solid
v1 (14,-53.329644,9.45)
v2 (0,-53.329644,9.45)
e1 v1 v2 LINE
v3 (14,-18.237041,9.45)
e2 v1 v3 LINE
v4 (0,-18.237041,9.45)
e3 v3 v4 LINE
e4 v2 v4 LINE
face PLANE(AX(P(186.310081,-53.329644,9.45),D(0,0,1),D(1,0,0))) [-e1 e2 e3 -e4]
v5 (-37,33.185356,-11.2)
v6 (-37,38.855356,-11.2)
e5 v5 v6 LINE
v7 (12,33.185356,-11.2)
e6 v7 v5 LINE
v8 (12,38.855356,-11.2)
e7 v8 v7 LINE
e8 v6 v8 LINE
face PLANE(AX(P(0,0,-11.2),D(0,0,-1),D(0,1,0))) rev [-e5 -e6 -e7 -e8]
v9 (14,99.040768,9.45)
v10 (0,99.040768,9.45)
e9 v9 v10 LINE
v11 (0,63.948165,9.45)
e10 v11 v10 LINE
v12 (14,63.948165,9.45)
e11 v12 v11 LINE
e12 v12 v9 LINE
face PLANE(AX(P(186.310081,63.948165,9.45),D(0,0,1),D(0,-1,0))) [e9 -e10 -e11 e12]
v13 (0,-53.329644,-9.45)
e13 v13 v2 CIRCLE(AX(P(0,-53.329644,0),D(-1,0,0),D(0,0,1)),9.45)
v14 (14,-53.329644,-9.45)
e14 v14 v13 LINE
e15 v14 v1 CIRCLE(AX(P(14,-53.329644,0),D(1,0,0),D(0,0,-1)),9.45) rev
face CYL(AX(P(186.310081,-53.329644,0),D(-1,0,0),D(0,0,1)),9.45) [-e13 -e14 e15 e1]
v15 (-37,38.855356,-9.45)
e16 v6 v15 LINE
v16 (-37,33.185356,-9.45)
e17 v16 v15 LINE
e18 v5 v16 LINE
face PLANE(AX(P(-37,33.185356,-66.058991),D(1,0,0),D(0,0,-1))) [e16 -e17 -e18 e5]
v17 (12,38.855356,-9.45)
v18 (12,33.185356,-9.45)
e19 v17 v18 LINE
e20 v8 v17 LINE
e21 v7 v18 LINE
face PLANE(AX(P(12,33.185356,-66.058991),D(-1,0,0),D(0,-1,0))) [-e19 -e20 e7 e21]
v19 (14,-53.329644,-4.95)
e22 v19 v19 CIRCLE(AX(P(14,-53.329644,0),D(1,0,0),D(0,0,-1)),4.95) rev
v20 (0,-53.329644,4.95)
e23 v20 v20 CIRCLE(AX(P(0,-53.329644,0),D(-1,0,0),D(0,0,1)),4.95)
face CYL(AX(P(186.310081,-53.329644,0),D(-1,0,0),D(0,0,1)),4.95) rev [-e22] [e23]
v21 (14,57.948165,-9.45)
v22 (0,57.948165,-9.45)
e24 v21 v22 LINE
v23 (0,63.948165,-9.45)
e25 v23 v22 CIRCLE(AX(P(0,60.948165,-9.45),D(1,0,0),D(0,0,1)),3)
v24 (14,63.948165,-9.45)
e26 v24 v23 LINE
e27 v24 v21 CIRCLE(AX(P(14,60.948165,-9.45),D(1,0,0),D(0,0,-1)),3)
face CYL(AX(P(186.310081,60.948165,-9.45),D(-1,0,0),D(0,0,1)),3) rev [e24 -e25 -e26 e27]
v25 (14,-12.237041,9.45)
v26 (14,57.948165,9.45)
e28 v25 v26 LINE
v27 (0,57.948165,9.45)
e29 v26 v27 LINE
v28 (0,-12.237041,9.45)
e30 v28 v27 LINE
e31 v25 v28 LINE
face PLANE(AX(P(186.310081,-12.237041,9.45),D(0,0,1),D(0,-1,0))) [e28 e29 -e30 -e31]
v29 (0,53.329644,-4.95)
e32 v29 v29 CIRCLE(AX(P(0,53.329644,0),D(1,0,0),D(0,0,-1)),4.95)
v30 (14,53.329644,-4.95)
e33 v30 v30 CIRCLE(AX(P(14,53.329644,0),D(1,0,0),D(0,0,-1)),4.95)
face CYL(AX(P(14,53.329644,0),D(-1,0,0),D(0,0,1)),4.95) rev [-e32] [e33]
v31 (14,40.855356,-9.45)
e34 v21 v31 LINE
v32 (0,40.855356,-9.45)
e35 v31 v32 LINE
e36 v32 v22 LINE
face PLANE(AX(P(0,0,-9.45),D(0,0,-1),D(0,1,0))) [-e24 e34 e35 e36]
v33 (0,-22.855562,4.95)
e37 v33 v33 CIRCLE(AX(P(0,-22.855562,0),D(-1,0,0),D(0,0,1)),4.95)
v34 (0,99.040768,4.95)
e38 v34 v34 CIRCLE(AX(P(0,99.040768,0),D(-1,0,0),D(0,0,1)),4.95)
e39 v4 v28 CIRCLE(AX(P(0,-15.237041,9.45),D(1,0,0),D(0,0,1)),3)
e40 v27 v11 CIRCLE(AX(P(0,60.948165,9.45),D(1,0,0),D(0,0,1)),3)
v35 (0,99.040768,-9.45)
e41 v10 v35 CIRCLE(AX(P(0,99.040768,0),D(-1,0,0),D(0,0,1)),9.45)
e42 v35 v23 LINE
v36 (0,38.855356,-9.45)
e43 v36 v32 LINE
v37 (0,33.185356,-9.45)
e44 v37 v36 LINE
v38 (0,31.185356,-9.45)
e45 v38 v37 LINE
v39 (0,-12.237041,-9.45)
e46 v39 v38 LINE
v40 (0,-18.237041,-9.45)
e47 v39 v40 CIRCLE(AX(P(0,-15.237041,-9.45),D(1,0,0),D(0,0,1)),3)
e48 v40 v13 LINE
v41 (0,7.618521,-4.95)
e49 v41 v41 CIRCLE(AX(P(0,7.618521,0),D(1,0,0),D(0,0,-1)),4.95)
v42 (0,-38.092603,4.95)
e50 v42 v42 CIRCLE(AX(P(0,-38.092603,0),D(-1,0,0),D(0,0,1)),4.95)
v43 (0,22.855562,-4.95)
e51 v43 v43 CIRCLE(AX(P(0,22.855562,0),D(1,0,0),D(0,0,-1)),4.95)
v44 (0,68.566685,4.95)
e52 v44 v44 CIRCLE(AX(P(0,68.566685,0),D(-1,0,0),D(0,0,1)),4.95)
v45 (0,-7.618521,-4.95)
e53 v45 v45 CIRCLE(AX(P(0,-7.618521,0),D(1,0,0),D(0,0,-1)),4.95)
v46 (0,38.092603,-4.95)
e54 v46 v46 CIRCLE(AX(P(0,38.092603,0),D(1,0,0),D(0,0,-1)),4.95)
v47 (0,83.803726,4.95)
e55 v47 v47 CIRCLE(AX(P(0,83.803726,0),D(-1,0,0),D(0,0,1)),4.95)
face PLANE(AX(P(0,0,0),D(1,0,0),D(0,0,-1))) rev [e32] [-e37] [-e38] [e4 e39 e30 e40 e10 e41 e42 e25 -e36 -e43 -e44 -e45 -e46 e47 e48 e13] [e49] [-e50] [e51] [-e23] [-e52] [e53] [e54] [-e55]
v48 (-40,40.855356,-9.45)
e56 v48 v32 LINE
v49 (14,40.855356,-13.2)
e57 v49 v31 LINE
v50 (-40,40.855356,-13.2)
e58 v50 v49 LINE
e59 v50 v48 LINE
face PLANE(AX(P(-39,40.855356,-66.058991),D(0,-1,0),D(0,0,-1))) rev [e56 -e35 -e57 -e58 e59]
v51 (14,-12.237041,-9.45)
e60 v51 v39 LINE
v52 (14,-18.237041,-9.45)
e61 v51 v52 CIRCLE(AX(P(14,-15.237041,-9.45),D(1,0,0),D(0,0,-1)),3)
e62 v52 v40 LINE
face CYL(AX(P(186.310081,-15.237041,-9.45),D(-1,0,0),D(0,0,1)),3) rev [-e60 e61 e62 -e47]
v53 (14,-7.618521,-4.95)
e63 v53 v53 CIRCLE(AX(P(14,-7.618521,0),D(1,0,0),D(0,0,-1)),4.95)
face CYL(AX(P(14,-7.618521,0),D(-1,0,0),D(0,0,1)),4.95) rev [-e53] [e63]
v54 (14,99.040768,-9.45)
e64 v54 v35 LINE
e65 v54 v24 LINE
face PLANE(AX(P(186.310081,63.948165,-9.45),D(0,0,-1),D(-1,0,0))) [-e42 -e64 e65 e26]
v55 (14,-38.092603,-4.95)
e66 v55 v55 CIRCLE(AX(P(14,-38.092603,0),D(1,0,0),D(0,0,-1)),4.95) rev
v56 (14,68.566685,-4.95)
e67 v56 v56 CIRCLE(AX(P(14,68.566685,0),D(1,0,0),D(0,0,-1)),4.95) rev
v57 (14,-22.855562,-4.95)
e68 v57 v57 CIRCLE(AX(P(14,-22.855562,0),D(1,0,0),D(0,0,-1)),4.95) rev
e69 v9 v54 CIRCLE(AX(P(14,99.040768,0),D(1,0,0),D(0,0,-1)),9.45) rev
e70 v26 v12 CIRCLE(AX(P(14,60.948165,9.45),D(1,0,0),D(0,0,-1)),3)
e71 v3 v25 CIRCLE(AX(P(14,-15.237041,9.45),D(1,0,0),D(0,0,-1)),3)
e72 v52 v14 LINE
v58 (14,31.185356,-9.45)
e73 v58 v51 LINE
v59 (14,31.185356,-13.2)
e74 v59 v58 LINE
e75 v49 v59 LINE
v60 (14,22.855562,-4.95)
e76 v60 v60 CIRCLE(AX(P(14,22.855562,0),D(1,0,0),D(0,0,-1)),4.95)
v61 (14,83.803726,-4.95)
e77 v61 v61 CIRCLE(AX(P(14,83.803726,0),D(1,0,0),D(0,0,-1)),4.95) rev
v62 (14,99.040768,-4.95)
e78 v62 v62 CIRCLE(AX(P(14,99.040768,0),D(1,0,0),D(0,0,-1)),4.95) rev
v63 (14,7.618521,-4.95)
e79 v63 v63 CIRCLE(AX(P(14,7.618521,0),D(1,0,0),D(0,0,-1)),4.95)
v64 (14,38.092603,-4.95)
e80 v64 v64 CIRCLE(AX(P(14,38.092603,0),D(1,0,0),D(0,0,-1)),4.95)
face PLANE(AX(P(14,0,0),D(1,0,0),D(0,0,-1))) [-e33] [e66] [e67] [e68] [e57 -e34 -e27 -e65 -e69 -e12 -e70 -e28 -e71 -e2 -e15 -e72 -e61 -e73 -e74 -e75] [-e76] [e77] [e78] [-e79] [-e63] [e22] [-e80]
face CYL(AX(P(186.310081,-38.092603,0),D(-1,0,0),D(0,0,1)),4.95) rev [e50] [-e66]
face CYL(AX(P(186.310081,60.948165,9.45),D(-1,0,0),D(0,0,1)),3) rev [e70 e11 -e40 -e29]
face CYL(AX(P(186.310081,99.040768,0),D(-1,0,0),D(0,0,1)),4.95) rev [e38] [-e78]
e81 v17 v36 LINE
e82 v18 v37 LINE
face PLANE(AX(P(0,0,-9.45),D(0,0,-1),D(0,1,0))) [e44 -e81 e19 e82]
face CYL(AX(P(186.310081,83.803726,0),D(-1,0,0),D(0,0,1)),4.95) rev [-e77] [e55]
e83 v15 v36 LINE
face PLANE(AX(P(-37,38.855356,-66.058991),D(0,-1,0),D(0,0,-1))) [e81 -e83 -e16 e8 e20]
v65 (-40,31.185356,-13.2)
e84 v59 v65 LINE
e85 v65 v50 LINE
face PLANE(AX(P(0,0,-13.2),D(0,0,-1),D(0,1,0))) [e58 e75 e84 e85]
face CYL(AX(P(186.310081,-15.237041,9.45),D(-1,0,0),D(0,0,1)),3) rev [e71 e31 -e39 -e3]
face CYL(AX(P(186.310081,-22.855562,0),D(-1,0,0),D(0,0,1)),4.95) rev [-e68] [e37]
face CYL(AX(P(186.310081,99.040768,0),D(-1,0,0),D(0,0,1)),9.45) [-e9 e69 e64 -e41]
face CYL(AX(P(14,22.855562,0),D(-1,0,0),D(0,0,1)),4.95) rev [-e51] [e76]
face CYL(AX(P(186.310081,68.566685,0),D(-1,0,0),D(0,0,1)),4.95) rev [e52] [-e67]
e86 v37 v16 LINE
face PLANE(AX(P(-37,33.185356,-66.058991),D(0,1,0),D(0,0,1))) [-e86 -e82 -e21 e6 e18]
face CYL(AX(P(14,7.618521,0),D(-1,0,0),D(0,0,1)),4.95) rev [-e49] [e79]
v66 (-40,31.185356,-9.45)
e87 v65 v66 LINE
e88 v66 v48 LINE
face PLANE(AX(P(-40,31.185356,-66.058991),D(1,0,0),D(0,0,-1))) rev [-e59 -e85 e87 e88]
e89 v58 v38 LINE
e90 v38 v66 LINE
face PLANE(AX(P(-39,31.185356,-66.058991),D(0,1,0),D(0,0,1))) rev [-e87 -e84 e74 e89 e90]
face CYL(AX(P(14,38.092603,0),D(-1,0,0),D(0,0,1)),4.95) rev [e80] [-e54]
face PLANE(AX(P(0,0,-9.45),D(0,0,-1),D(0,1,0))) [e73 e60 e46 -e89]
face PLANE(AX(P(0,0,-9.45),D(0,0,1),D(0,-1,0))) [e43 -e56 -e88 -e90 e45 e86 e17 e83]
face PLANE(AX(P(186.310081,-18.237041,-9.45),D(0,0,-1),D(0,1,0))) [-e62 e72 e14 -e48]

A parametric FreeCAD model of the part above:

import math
import FreeCAD as App
import Part
import Sketcher

doc = App.newDocument("Part")
body = doc.addObject("PartDesign::Body", "Body")

# Sketch on YZ plane
sketch1 = body.newObject("Sketcher::SketchObject", "Sketch")
sketch1.AttachmentSupport = (doc.getObject("YZ_Plane"), [""])
sketch1.MapMode = "FlatFace"
sketch1.addGeometry([
    Part.ArcOfCircle(Part.Circle(App.Vector(53.3, 0, 0), App.Vector(0, 0, 1), 6.5), math.radians(-90), math.radians(90)),  # 0
    Part.LineSegment(App.Vector(53.3, 6.5, 0), App.Vector(-7.6, 6.5, 0)),  # 1
    Part.ArcOfCircle(Part.Circle(App.Vector(-7.6, 0, 0), App.Vector(0, 0, 1), 6.5), math.radians(90), math.radians(270)),  # 2
    Part.LineSegment(App.Vector(-7.6, -6.5, 0), App.Vector(53.3, -6.5, 0)),  # 3
    Part.Circle(App.Vector(-7.6, 0, 0), App.Vector(0, 0, 1), 5),  # 4
    Part.Circle(App.Vector(7.6, 0, 0), App.Vector(0, 0, 1), 5),  # 5
    Part.Circle(App.Vector(22.9, 0, 0), App.Vector(0, 0, 1), 5),  # 6
    Part.Circle(App.Vector(38.1, 0, 0), App.Vector(0, 0, 1), 5),  # 7
    Part.Circle(App.Vector(53.3, 0, 0), App.Vector(0, 0, 1), 5),  # 8
], False)
sketch1.addConstraint([
    Sketcher.Constraint("Tangent", 0, 2, 1, 1),
    Sketcher.Constraint("Tangent", 1, 2, 2, 1),
    Sketcher.Constraint("Tangent", 2, 2, 3, 1),
    Sketcher.Constraint("Tangent", 3, 2, 0, 1),
    Sketcher.Constraint("Horizontal", 1),
    Sketcher.Constraint("Horizontal", 3),
    Sketcher.Constraint("Coincident", 4, 3, 2, 3),
    Sketcher.Constraint("Coincident", 8, 3, 0, 3),
    Sketcher.Constraint("Equal", 4, 5),
    Sketcher.Constraint("Equal", 5, 6),
    Sketcher.Constraint("Equal", 6, 7),
    Sketcher.Constraint("Equal", 7, 8),
    Sketcher.Constraint("Symmetric", 2, 3, 5, 3, -1, 1),
    Sketcher.Constraint("PointOnObject", 0, 3, -1),
    Sketcher.Constraint("PointOnObject", 6, 3, -1),
    Sketcher.Constraint("PointOnObject", 7, 3, -1),
    Sketcher.Constraint("Diameter", 4, 9.9),
    Sketcher.Constraint("Radius", 0, 6.45),
    Sketcher.Constraint("DistanceX", 1, 2, 1, 1, 60.948165),
    Sketcher.Constraint("DistanceX", 2, 3, -1, 1, 7.618521),
    Sketcher.Constraint("DistanceX", -1, 1, 6, 3, 22.855562),
    Sketcher.Constraint("DistanceX", 6, 3, 7, 3, 15.237041),
])
pad1 = body.newObject("PartDesign::Pad", "Pad")
pad1.Profile = sketch1
pad1.Length = 14

# Sketch on XY plane
sketch2 = body.newObject("Sketcher::SketchObject", "Sketch001")
sketch2.AttachmentSupport = (doc.getObject("XY_Plane"), [""])
sketch2.MapMode = "FlatFace"
sketch2.AttachmentOffset = App.Placement(App.Vector(0, 0, -6.45), App.Rotation())
sketch2.addGeometry([
    Part.LineSegment(App.Vector(14, 53, 0), App.Vector(14, -8, 0)),
    Part.LineSegment(App.Vector(14, -8, 0), App.Vector(0, -8, 0)),
    Part.LineSegment(App.Vector(0, -8, 0), App.Vector(0, 53, 0)),
    Part.LineSegment(App.Vector(0, 53, 0), App.Vector(14, 53, 0)),
], False)
sketch2.addConstraint([
    Sketcher.Constraint("Coincident", 0, 2, 1, 1),
    Sketcher.Constraint("Coincident", 1, 2, 2, 1),
    Sketcher.Constraint("Coincident", 2, 2, 3, 1),
    Sketcher.Constraint("Coincident", 3, 2, 0, 1),
    Sketcher.Constraint("Vertical", 0),
    Sketcher.Constraint("Horizontal", 1),
    Sketcher.Constraint("Vertical", 2),
    Sketcher.Constraint("Horizontal", 3),
    Sketcher.Constraint("PointOnObject", 1, 2, -2),
    Sketcher.Constraint("DistanceX", 1, 2, 1, 1, 14.0),
    Sketcher.Constraint("DistanceY", 0, 2, 0, 1, 60.948165),
    Sketcher.Constraint("DistanceY", 0, 2, -1, 1, 7.618521),
])
pad2 = body.newObject("PartDesign::Pad", "Pad001")
pad2.Profile = sketch2
pad2.Length = 3
pad2.Reversed = True

# Sketch on YZ plane
sketch3 = body.newObject("Sketcher::SketchObject", "Sketch002")
sketch3.AttachmentSupport = (doc.getObject("YZ_Plane"), [""])
sketch3.MapMode = "FlatFace"
sketch3.addGeometry([
    Part.ArcOfCircle(Part.Circle(App.Vector(60.9, -9.4, 0), App.Vector(0, 0, 1), 3), math.radians(0), math.radians(180)),  # 0
    Part.LineSegment(App.Vector(57.9, -9.4, 0), App.Vector(-12.2, -9.4, 0)),  # 1
    Part.ArcOfCircle(Part.Circle(App.Vector(-15.2, -9.4, 0), App.Vector(0, 0, 1), 3), math.radians(0), math.radians(180)),  # 2
    Part.LineSegment(App.Vector(-18.2, -9.4, 0), App.Vector(-53.3, -9.4, 0)),  # 3
    Part.ArcOfCircle(Part.Circle(App.Vector(-53.3, 0, 0), App.Vector(0, 0, 1), 9.4), math.radians(90), math.radians(270)),  # 4
    Part.LineSegment(App.Vector(-53.3, 9.4, 0), App.Vector(-18.2, 9.4, 0)),  # 5
    Part.ArcOfCircle(Part.Circle(App.Vector(-15.2, 9.4, 0), App.Vector(0, 0, 1), 3), math.radians(180), math.radians(360)),  # 6
    Part.LineSegment(App.Vector(-12.2, 9.4, 0), App.Vector(57.9, 9.4, 0)),  # 7
    Part.ArcOfCircle(Part.Circle(App.Vector(60.9, 9.4, 0), App.Vector(0, 0, 1), 3), math.radians(180), math.radians(360)),  # 8
    Part.LineSegment(App.Vector(63.9, 9.4, 0), App.Vector(99, 9.4, 0)),  # 9
    Part.ArcOfCircle(Part.Circle(App.Vector(99, 0, 0), App.Vector(0, 0, 1), 9.4), math.radians(-90), math.radians(90)),  # 10
    Part.LineSegment(App.Vector(99, -9.4, 0), App.Vector(63.9, -9.4, 0)),  # 11
    Part.Circle(App.Vector(-53.3, 0, 0), App.Vector(0, 0, 1), 5),  # 12
    Part.Circle(App.Vector(-38.1, 0, 0), App.Vector(0, 0, 1), 5),  # 13
    Part.Circle(App.Vector(-22.9, 0, 0), App.Vector(0, 0, 1), 5),  # 14
    Part.Circle(App.Vector(-7.6, 0, 0), App.Vector(0, 0, 1), 5),  # 15
    Part.Circle(App.Vector(7.6, 0, 0), App.Vector(0, 0, 1), 5),  # 16
    Part.Circle(App.Vector(22.9, 0, 0), App.Vector(0, 0, 1), 5),  # 17
    Part.Circle(App.Vector(38.1, 0, 0), App.Vector(0, 0, 1), 5),  # 18
    Part.Circle(App.Vector(53.3, 0, 0), App.Vector(0, 0, 1), 5),  # 19
    Part.Circle(App.Vector(68.6, 0, 0), App.Vector(0, 0, 1), 5),  # 20
    Part.Circle(App.Vector(83.8, 0, 0), App.Vector(0, 0, 1), 5),  # 21
    Part.Circle(App.Vector(99, 0, 0), App.Vector(0, 0, 1), 5),  # 22
], False)
sketch3.addConstraint([
    Sketcher.Constraint("Coincident", 0, 2, 1, 1),
    Sketcher.Constraint("Coincident", 1, 2, 2, 1),
    Sketcher.Constraint("Coincident", 2, 2, 3, 1),
    Sketcher.Constraint("Tangent", 3, 2, 4, 2),
    Sketcher.Constraint("Tangent", 4, 1, 5, 1),
    Sketcher.Constraint("Coincident", 5, 2, 6, 1),
    Sketcher.Constraint("Coincident", 6, 2, 7, 1),
    Sketcher.Constraint("Coincident", 7, 2, 8, 1),
    Sketcher.Constraint("Coincident", 8, 2, 9, 1),
    Sketcher.Constraint("Tangent", 9, 2, 10, 2),
    Sketcher.Constraint("Tangent", 10, 1, 11, 1),
    Sketcher.Constraint("Coincident", 11, 2, 0, 1),
    Sketcher.Constraint("Horizontal", 1),
    Sketcher.Constraint("Horizontal", 3),
    Sketcher.Constraint("Horizontal", 5),
    Sketcher.Constraint("Horizontal", 7),
    Sketcher.Constraint("Horizontal", 9),
    Sketcher.Constraint("Horizontal", 11),
    Sketcher.Constraint("Coincident", 12, 3, 4, 3),
    Sketcher.Constraint("Coincident", 22, 3, 10, 3),
    Sketcher.Constraint("Equal", 0, 2),
    Sketcher.Constraint("Equal", 2, 6),
    Sketcher.Constraint("Equal", 6, 8),
    Sketcher.Constraint("Equal", 4, 10),
    Sketcher.Constraint("Equal", 12, 13),
    Sketcher.Constraint("Equal", 13, 14),
    Sketcher.Constraint("Equal", 14, 15),
    Sketcher.Constraint("Equal", 15, 16),
    Sketcher.Constraint("Equal", 16, 17),
    Sketcher.Constraint("Equal", 17, 18),
    Sketcher.Constraint("Equal", 18, 19),
    Sketcher.Constraint("Equal", 19, 20),
    Sketcher.Constraint("Equal", 20, 21),
    Sketcher.Constraint("Equal", 21, 22),
    Sketcher.Constraint("Symmetric", 15, 3, 16, 3, -1, 1),
    Sketcher.Constraint("Symmetric", 14, 3, 17, 3, -1, 1),
    Sketcher.Constraint("Symmetric", 13, 3, 18, 3, -1, 1),
    Sketcher.Constraint("Symmetric", 4, 3, 19, 3, -1, 1),
    Sketcher.Constraint("Symmetric", 2, 3, 6, 3, -1),
    Sketcher.Constraint("Symmetric", 0, 3, 8, 3, -1),
    Sketcher.Constraint("PointOnObject", 4, 3, -1),
    Sketcher.Constraint("PointOnObject", 10, 3, -1),
    Sketcher.Constraint("PointOnObject", 13, 3, -1),
    Sketcher.Constraint("PointOnObject", 14, 3, -1),
    Sketcher.Constraint("PointOnObject", 15, 3, -1),
    Sketcher.Constraint("PointOnObject", 20, 3, -1),
    Sketcher.Constraint("PointOnObject", 21, 3, -1),
    Sketcher.Constraint("Horizontal", 0, 3, 2, 3),
    Sketcher.Constraint("Horizontal", 2, 3, 0, 2),
    Sketcher.Constraint("Horizontal", 1, 2, 2, 2),
    Sketcher.Constraint("Horizontal", 5, 2, 6, 2),
    Sketcher.Constraint("Equal", 5, 9),
    Sketcher.Constraint("Radius", 0, 3.0),
    Sketcher.Constraint("Diameter", 12, 9.9),
    Sketcher.Constraint("Radius", 4, 9.45),
    Sketcher.Constraint("DistanceX", 1, 2, 1, 1, 70.185206),
    Sketcher.Constraint("DistanceX", 3, 2, 3, 1, 35.092603),
    Sketcher.Constraint("DistanceX", 2, 3, -1, 1, 15.237041),
    Sketcher.Constraint("DistanceX", 14, 3, -1, 1, 22.855562),
    Sketcher.Constraint("DistanceX", 15, 3, -1, 1, 7.618521),
    Sketcher.Constraint("DistanceX", 4, 3, 13, 3, 15.237041),
    Sketcher.Constraint("DistanceX", 0, 3, 20, 3, 7.618521),
    Sketcher.Constraint("DistanceX", 20, 3, 21, 3, 15.237041),
])
pad3 = body.newObject("PartDesign::Pad", "Pad002")
pad3.Profile = sketch3
pad3.Length = 14

# Sketch on XY plane
sketch4 = body.newObject("Sketcher::SketchObject", "Sketch003")
sketch4.AttachmentSupport = (doc.getObject("XY_Plane"), [""])
sketch4.MapMode = "FlatFace"
sketch4.AttachmentOffset = App.Placement(App.Vector(0, 0, -9.45), App.Rotation())
sketch4.addGeometry([
    Part.LineSegment(App.Vector(14, 41, 0), App.Vector(14, 31, 0)),  # 0
    Part.LineSegment(App.Vector(14, 31, 0), App.Vector(-40, 31, 0)),  # 1
    Part.LineSegment(App.Vector(-40, 31, 0), App.Vector(-40, 41, 0)),  # 2
    Part.LineSegment(App.Vector(-40, 41, 0), App.Vector(14, 41, 0)),  # 3
    Part.LineSegment(App.Vector(12, 33, 0), App.Vector(12, 39, 0)),  # 4
    Part.LineSegment(App.Vector(12, 39, 0), App.Vector(-37, 39, 0)),  # 5
    Part.LineSegment(App.Vector(-37, 39, 0), App.Vector(-37, 33, 0)),  # 6
    Part.LineSegment(App.Vector(-37, 33, 0), App.Vector(12, 33, 0)),  # 7
], False)
sketch4.addConstraint([
    Sketcher.Constraint("Coincident", 0, 2, 1, 1),
    Sketcher.Constraint("Coincident", 1, 2, 2, 1),
    Sketcher.Constraint("Coincident", 2, 2, 3, 1),
    Sketcher.Constraint("Coincident", 3, 2, 0, 1),
    Sketcher.Constraint("Coincident", 4, 2, 5, 1),
    Sketcher.Constraint("Coincident", 5, 2, 6, 1),
    Sketcher.Constraint("Coincident", 6, 2, 7, 1),
    Sketcher.Constraint("Coincident", 7, 2, 4, 1),
    Sketcher.Constraint("Vertical", 0),
    Sketcher.Constraint("Horizontal", 1),
    Sketcher.Constraint("Vertical", 2),
    Sketcher.Constraint("Horizontal", 3),
    Sketcher.Constraint("Vertical", 4),
    Sketcher.Constraint("Horizontal", 5),
    Sketcher.Constraint("Vertical", 6),
    Sketcher.Constraint("Horizontal", 7),
    Sketcher.Constraint("DistanceX", 1, 2, 1, 1, 54.0),
    Sketcher.Constraint("DistanceX", 5, 2, 5, 1, 49.0),
    Sketcher.Constraint("DistanceX", -1, 1, 0, 2, 14.0),
    Sketcher.Constraint("DistanceX", -1, 1, 4, 2, 12.0),
    Sketcher.Constraint("DistanceY", 4, 2, 3, 2, 2.0),
    Sketcher.Constraint("DistanceY", 1, 2, 6, 2, 2.0),
    Sketcher.Constraint("DistanceY", 0, 2, 0, 1, 9.67),
    Sketcher.Constraint("DistanceY", -1, 1, 0, 2, 31.185356),
])
pad4 = body.newObject("PartDesign::Pad", "Pad003")
pad4.Profile = sketch4
pad4.Length = 1.75
pad4.Reversed = True

# Sketch on XY plane
sketch5 = body.newObject("Sketcher::SketchObject", "Sketch004")
sketch5.AttachmentSupport = (doc.getObject("XY_Plane"), [""])
sketch5.MapMode = "FlatFace"
sketch5.AttachmentOffset = App.Placement(App.Vector(0, 0, -11.2), App.Rotation())
sketch5.addGeometry([
    Part.LineSegment(App.Vector(14, 31, 0), App.Vector(-40, 31, 0)),
    Part.LineSegment(App.Vector(-40, 31, 0), App.Vector(-40, 41, 0)),
    Part.LineSegment(App.Vector(-40, 41, 0), App.Vector(14, 41, 0)),
    Part.LineSegment(App.Vector(14, 41, 0), App.Vector(14, 31, 0)),
], False)
sketch5.addConstraint([
    Sketcher.Constraint("Coincident", 0, 2, 1, 1),
    Sketcher.Constraint("Coincident", 1, 2, 2, 1),
    Sketcher.Constraint("Coincident", 2, 2, 3, 1),
    Sketcher.Constraint("Coincident", 3, 2, 0, 1),
    Sketcher.Constraint("Horizontal", 0),
    Sketcher.Constraint("Vertical", 1),
    Sketcher.Constraint("Horizontal", 2),
    Sketcher.Constraint("Vertical", 3),
    Sketcher.Constraint("DistanceX", 0, 2, 0, 1, 54.0),
    Sketcher.Constraint("DistanceX", 0, 2, -1, 1, 40.0),
    Sketcher.Constraint("DistanceY", 1, 1, 1, 2, 9.67),
    Sketcher.Constraint("DistanceY", -1, 1, 0, 2, 31.185356),
])
pad5 = body.newObject("PartDesign::Pad", "Pad004")
pad5.Profile = sketch5
pad5.Length = 2
pad5.Reversed = True

doc.recompute()
